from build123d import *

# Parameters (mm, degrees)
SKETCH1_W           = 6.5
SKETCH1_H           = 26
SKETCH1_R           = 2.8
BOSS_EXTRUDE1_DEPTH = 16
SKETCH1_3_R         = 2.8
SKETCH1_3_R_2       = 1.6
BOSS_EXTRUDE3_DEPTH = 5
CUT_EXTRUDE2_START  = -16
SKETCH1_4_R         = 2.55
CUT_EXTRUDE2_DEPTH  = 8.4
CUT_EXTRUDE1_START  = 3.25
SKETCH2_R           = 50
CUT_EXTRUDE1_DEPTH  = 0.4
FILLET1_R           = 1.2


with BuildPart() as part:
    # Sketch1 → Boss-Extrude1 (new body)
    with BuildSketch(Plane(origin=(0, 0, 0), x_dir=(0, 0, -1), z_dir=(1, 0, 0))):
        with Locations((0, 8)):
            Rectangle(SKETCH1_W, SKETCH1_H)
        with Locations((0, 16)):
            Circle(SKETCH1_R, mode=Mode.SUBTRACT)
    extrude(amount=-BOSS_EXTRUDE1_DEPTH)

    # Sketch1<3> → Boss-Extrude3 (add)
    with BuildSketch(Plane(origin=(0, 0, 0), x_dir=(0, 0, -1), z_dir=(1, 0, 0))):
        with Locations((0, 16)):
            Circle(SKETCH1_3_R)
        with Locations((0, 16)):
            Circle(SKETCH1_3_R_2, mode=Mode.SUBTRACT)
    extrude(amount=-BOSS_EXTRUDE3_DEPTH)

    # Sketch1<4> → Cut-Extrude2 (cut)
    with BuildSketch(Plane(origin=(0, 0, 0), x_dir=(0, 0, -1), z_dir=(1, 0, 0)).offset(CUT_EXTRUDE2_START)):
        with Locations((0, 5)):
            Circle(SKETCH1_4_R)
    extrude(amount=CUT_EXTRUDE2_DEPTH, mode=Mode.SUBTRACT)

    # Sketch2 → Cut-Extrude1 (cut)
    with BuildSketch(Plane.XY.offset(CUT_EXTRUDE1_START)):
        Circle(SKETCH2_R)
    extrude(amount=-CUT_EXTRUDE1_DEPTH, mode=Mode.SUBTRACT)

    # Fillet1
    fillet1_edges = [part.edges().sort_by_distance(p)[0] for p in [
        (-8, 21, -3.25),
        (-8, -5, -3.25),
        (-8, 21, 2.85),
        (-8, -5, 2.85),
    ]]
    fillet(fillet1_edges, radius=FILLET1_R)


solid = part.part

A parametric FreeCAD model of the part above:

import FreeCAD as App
import Part
import Sketcher
from FreeCAD import Vector


def edges_at(feature, points):
    """Names of the edges that pass closest to the given points."""
    edges = feature.Shape.Edges
    near = lambda p: min(range(len(edges)), key=lambda i: edges[i].distToShape(Part.Vertex(*p))[0])
    return sorted({f"Edge{near(p) + 1}" for p in points})

doc = App.newDocument("Part")
body = doc.addObject("PartDesign::Body", "Body")

# Sketch on YZ plane
sketch1 = body.newObject("Sketcher::SketchObject", "Sketch")
sketch1.AttachmentSupport = (doc.getObject("YZ_Plane"), [""])
sketch1.MapMode = "FlatFace"
sketch1.addGeometry([
    Part.LineSegment(Vector(21, 3.2, 0), Vector(-5, 3.2, 0)),  # 0
    Part.LineSegment(Vector(-5, 3.2, 0), Vector(-5, -3.2, 0)),  # 1
    Part.LineSegment(Vector(-5, -3.2, 0), Vector(21, -3.2, 0)),  # 2
    Part.LineSegment(Vector(21, -3.2, 0), Vector(21, 3.2, 0)),  # 3
    Part.Circle(Vector(16, 0, 0), Vector(0, 0, 1), 2.8),  # 4
], False)
sketch1.addConstraint([
    Sketcher.Constraint("Coincident", 0, 2, 1, 1),
    Sketcher.Constraint("Coincident", 1, 2, 2, 1),
    Sketcher.Constraint("Coincident", 2, 2, 3, 1),
    Sketcher.Constraint("Coincident", 3, 2, 0, 1),
    Sketcher.Constraint("Horizontal", 0),
    Sketcher.Constraint("Vertical", 1),
    Sketcher.Constraint("Horizontal", 2),
    Sketcher.Constraint("Vertical", 3),
    Sketcher.Constraint("PointOnObject", 4, 3, -1),
    Sketcher.Constraint("Diameter", 4, 5.6),
    Sketcher.Constraint("DistanceX", 0, 2, 0, 1, 26.0),
    Sketcher.Constraint("DistanceY", 1, 2, 1, 1, 6.5),
    Sketcher.Constraint("DistanceX", -1, 1, 4, 3, 16.0),
    Sketcher.Constraint("DistanceX", 0, 2, -1, 1, 5.0),
    Sketcher.Constraint("DistanceY", -1, 1, 0, 2, 3.25),
])
pad1 = body.newObject("PartDesign::Pad", "Pad")
pad1.Profile = sketch1
pad1.Length = 16
pad1.Reversed = True

# Sketch on YZ plane
sketch2 = body.newObject("Sketcher::SketchObject", "Sketch001")
sketch2.AttachmentSupport = (doc.getObject("YZ_Plane"), [""])
sketch2.MapMode = "FlatFace"
sketch2.addGeometry([
    Part.Circle(Vector(16, 0, 0), Vector(0, 0, 1), 2.8),
    Part.Circle(Vector(16, 0, 0), Vector(0, 0, 1), 1.6),
], False)
sketch2.addConstraint([
    Sketcher.Constraint("Coincident", 1, 3, 0, 3),
    Sketcher.Constraint("PointOnObject", 0, 3, -1),
    Sketcher.Constraint("Diameter", 0, 5.6),
    Sketcher.Constraint("Diameter", 1, 3.2),
    Sketcher.Constraint("DistanceX", -1, 1, 0, 3, 16.0),
])
pad2 = body.newObject("PartDesign::Pad", "Pad001")
pad2.Profile = sketch2
pad2.Length = 5
pad2.Reversed = True

# Sketch on YZ plane
sketch3 = body.newObject("Sketcher::SketchObject", "Sketch002")
sketch3.AttachmentSupport = (doc.getObject("YZ_Plane"), [""])
sketch3.MapMode = "FlatFace"
sketch3.AttachmentOffset = App.Placement(Vector(0, 0, -16), App.Rotation())
sketch3.addGeometry(Part.Circle(Vector(5, 0, 0), Vector(0, 0, 1), 2.5), False)
sketch3.addConstraint([
    Sketcher.Constraint("PointOnObject", 0, 3, -1),
    Sketcher.Constraint("Diameter", 0, 5.1),
    Sketcher.Constraint("DistanceX", -1, 1, 0, 3, 5.0),
])
pocket1 = body.newObject("PartDesign::Pocket", "Pocket")
pocket1.Profile = sketch3
pocket1.Length = 8.4
pocket1.Reversed = True

# Sketch on XY plane
sketch4 = body.newObject("Sketcher::SketchObject", "Sketch003")
sketch4.AttachmentSupport = (doc.getObject("XY_Plane"), [""])
sketch4.MapMode = "FlatFace"
sketch4.AttachmentOffset = App.Placement(Vector(0, 0, 3.25), App.Rotation())
sketch4.addGeometry(Part.Circle(Vector(0, 0, 0), Vector(0, 0, 1), 50), False)
sketch4.addConstraint([
    Sketcher.Constraint("Coincident", 0, 3, -1, 1),
    Sketcher.Constraint("Diameter", 0, 100.0),
])
pocket2 = body.newObject("PartDesign::Pocket", "Pocket001")
pocket2.Profile = sketch4
pocket2.Length = 0.4
doc.recompute()

fillet = body.newObject("PartDesign::Fillet", "Fillet")
fillet.Base = (pocket2, edges_at(pocket2, [
    (-8, 21, -3.25),
    (-8, -5, -3.25),
    (-8, 21, 2.85),
    (-8, -5, 2.85),
]))
fillet.Radius = 1.2

doc.recompute()
